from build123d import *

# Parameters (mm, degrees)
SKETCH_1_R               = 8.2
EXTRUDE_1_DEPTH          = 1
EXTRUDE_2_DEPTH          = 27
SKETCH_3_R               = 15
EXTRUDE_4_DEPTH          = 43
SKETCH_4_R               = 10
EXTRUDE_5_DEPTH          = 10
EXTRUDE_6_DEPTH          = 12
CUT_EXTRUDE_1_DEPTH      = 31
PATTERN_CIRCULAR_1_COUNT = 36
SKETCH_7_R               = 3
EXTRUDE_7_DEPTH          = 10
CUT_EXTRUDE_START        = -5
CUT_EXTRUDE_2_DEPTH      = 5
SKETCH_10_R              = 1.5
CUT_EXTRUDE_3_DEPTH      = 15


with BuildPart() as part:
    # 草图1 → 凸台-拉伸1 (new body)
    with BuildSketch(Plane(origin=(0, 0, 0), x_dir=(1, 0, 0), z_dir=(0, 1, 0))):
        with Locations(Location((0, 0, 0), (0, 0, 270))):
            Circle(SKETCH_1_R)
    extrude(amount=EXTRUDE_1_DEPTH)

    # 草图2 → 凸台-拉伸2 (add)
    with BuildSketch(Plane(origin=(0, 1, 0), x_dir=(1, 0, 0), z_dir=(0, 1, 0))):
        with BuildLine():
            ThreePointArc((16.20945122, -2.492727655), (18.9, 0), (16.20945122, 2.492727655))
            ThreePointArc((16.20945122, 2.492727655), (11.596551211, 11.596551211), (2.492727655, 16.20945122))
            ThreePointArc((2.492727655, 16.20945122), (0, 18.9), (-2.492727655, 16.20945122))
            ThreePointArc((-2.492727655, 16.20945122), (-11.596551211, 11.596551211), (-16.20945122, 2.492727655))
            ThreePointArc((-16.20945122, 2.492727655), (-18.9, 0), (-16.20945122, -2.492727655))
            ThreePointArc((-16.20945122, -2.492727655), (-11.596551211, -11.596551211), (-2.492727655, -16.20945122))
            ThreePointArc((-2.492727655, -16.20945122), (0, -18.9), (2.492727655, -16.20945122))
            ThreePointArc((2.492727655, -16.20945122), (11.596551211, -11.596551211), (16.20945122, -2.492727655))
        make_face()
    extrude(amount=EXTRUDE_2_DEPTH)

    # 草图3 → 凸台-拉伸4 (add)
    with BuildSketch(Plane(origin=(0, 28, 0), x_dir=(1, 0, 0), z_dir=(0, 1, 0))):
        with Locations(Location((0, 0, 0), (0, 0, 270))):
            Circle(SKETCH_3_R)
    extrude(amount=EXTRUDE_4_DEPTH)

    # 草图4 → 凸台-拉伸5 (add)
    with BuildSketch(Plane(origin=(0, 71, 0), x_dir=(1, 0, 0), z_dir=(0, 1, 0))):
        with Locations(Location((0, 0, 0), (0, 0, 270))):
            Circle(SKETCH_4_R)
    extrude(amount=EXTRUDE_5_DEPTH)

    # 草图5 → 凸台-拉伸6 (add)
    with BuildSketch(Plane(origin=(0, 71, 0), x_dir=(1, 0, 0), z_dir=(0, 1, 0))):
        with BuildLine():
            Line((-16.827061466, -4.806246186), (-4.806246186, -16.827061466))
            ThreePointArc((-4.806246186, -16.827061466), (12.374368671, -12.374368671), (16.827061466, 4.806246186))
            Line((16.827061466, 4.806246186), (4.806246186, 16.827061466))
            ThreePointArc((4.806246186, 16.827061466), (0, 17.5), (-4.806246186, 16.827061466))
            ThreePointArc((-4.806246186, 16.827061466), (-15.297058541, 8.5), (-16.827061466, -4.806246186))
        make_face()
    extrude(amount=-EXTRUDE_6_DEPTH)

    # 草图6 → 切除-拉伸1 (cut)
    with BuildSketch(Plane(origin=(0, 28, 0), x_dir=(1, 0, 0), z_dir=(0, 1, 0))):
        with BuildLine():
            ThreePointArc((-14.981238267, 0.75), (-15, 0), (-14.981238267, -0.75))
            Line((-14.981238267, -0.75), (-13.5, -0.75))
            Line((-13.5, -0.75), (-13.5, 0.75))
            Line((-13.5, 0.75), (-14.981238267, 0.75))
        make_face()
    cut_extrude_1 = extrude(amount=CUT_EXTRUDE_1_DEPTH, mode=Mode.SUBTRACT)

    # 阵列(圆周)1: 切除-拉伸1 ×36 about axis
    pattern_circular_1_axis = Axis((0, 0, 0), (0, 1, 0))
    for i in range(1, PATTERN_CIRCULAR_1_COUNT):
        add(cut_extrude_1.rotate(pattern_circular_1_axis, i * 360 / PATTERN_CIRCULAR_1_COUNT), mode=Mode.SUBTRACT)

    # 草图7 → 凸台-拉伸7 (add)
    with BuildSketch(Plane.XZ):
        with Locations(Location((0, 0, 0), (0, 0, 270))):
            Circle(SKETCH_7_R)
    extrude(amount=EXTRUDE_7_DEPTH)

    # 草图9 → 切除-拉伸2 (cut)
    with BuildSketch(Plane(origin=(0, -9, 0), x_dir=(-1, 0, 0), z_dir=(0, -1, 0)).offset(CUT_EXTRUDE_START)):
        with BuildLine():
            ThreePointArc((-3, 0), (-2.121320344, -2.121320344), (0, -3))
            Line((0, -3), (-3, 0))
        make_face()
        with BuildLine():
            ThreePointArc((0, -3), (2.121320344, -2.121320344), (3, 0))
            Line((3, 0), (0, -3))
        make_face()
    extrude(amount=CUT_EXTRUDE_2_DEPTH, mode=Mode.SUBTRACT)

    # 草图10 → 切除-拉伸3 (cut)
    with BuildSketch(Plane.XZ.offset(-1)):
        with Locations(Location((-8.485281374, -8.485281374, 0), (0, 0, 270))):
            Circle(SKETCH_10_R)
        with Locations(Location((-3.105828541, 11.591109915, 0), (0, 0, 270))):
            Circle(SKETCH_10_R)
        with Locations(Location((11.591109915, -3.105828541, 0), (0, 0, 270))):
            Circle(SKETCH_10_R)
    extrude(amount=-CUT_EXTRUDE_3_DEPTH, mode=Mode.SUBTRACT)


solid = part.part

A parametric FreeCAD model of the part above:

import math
import FreeCAD as App
import Part
import Sketcher

V = App.Vector
Q = App.Units.Quantity

doc = App.newDocument("Part")
params = doc.addObject("Spreadsheet::Sheet", "Params")
for row, (alias, value) in enumerate([
    ("sketch1_diameter", "16.4 mm"),
    ("pad1_length", "1 mm"),
    ("sketch2_radius", "2.5 mm"),
    ("sketch2_radius2", "16.4 mm"),
    ("pad2_length", "27 mm"),
    ("sketch3_diameter", "30 mm"),
    ("pad3_length", "43 mm"),
    ("sketch4_diameter", "20 mm"),
    ("pad4_length", "10 mm"),
    ("sketch5_radius", "17.5 mm"),
    ("sketch5_length", "17 mm"),
    ("pad5_length", "12 mm"),
    ("sketch6_radius", "15 mm"),
    ("sketch6_height", "1.5 mm"),
    ("pocket1_length", "31 mm"),
    ("sketch7_diameter", "6 mm"),
    ("pad6_length", "10 mm"),
    ("sketch8_radius", "3 mm"),
    ("pocket2_length", "5 mm"),
    ("sketch9_diameter", "3 mm"),
    ("pocket3_length", "15 mm"),
], start=1):
    params.set(f"A{row}", alias)
    params.set(f"B{row}", "=" + value)
    params.setAlias(f"B{row}", alias)

body = doc.addObject("PartDesign::Body", "Body")

sketch1 = doc.addObject("Sketcher::SketchObject", "Sketch")
body.addObject(sketch1)
sketch1.AttachmentSupport = (doc.XZ_Plane, [""])
sketch1.MapMode = "FlatFace"
sketch1.addGeometry(Part.Circle(V(0, 0, 0), V(0, 0, 1), 8.2), False)
sketch1.addConstraint([
    Sketcher.Constraint("Coincident", 0, 3, -1, 1),
    Sketcher.Constraint("Diameter", 0, Q("16.4 mm")),
])
sketch1.setExpression("Constraints[1]", "Params.sketch1_diameter")
pad1 = doc.addObject("PartDesign::Pad", "Pad")
body.addObject(pad1)
pad1.Profile = sketch1
pad1.setExpression("Length", "Params.pad1_length")
pad1.Reversed = True

sketch2 = doc.addObject("Sketcher::SketchObject", "Sketch001")
body.addObject(sketch2)
sketch2.AttachmentSupport = (doc.XZ_Plane, [""])
sketch2.MapMode = "FlatFace"
sketch2.AttachmentOffset = App.Placement(V(0, 0, -1), App.Rotation())
sketch2.addGeometry([
    Part.ArcOfCircle(Part.Circle(V(16.4, 0, 0), V(0, 0, 1), 2.5), math.radians(-94.371296), math.radians(94.371296)),
    Part.ArcOfCircle(Part.Circle(V(0, 0, 0), V(0, 0, 1), 16.4), math.radians(-81.257408), math.radians(-8.742592)),
    Part.ArcOfCircle(Part.Circle(V(0, -16.4, 0), V(0, 0, 1), 2.5), math.radians(175.628704), math.radians(364.371296)),
    Part.ArcOfCircle(Part.Circle(V(0, 0, 0), V(0, 0, 1), 16.4), math.radians(-171.257408), math.radians(-98.742592)),
    Part.ArcOfCircle(Part.Circle(V(-16.4, 0, 0), V(0, 0, 1), 2.5), math.radians(85.628704), math.radians(274.371296)),
    Part.ArcOfCircle(Part.Circle(V(0, 0, 0), V(0, 0, 1), 16.4), math.radians(98.742592), math.radians(171.257408)),
    Part.ArcOfCircle(Part.Circle(V(0, 16.4, 0), V(0, 0, 1), 2.5), math.radians(-4.371296), math.radians(184.371296)),
    Part.ArcOfCircle(Part.Circle(V(0, 0, 0), V(0, 0, 1), 16.4), math.radians(8.742592), math.radians(81.257408)),
], False)
sketch2.addConstraint([
    Sketcher.Constraint("Coincident", 0, 1, 1, 2),
    Sketcher.Constraint("Coincident", 1, 1, 2, 2),
    Sketcher.Constraint("Coincident", 2, 1, 3, 2),
    Sketcher.Constraint("Coincident", 3, 1, 4, 2),
    Sketcher.Constraint("Coincident", 4, 1, 5, 2),
    Sketcher.Constraint("Coincident", 5, 1, 6, 2),
    Sketcher.Constraint("Coincident", 6, 1, 7, 2),
    Sketcher.Constraint("Coincident", 7, 1, 0, 2),
    Sketcher.Constraint("Coincident", 1, 3, -1, 1),
    Sketcher.Constraint("Coincident", 3, 3, -1, 1),
    Sketcher.Constraint("Coincident", 5, 3, -1, 1),
    Sketcher.Constraint("Coincident", 7, 3, -1, 1),
    Sketcher.Constraint("Equal", 0, 2),
    Sketcher.Constraint("Equal", 1, 3),
    Sketcher.Constraint("Equal", 2, 4),
    Sketcher.Constraint("Equal", 3, 5),
    Sketcher.Constraint("Equal", 4, 6),
    Sketcher.Constraint("Equal", 5, 7),
    Sketcher.Constraint("Symmetric", 0, 3, 4, 3, -1, 1),
    Sketcher.Constraint("Symmetric", 2, 3, 6, 3, -1, 1),
    Sketcher.Constraint("PointOnObject", 0, 3, -1),
    Sketcher.Constraint("PointOnObject", 2, 3, -2),
    Sketcher.Constraint("Radius", 0, Q("2.5 mm")),
    Sketcher.Constraint("Radius", 1, Q("16.4 mm")),
    Sketcher.Constraint("DistanceX", -1, 1, 0, 3, Q("16.4 mm")),
    Sketcher.Constraint("DistanceY", 2, 3, -1, 1, Q("16.4 mm")),
])
sketch2.setExpression("Constraints[22]", "Params.sketch2_radius")
sketch2.setExpression("Constraints[23]", "Params.sketch2_radius2")
pad2 = doc.addObject("PartDesign::Pad", "Pad001")
body.addObject(pad2)
pad2.Profile = sketch2
pad2.setExpression("Length", "Params.pad2_length")
pad2.Reversed = True

sketch3 = doc.addObject("Sketcher::SketchObject", "Sketch002")
body.addObject(sketch3)
sketch3.AttachmentSupport = (doc.XZ_Plane, [""])
sketch3.MapMode = "FlatFace"
sketch3.AttachmentOffset = App.Placement(V(0, 0, -28), App.Rotation())
sketch3.addGeometry(Part.Circle(V(0, 0, 0), V(0, 0, 1), 15), False)
sketch3.addConstraint([
    Sketcher.Constraint("Coincident", 0, 3, -1, 1),
    Sketcher.Constraint("Diameter", 0, Q("30 mm")),
])
sketch3.setExpression("Constraints[1]", "Params.sketch3_diameter")
pad3 = doc.addObject("PartDesign::Pad", "Pad002")
body.addObject(pad3)
pad3.Profile = sketch3
pad3.setExpression("Length", "Params.pad3_length")
pad3.Reversed = True

sketch4 = doc.addObject("Sketcher::SketchObject", "Sketch003")
body.addObject(sketch4)
sketch4.AttachmentSupport = (doc.XZ_Plane, [""])
sketch4.MapMode = "FlatFace"
sketch4.AttachmentOffset = App.Placement(V(0, 0, -71), App.Rotation())
sketch4.addGeometry(Part.Circle(V(0, 0, 0), V(0, 0, 1), 10), False)
sketch4.addConstraint([
    Sketcher.Constraint("Coincident", 0, 3, -1, 1),
    Sketcher.Constraint("Diameter", 0, Q("20 mm")),
])
sketch4.setExpression("Constraints[1]", "Params.sketch4_diameter")
pad4 = doc.addObject("PartDesign::Pad", "Pad003")
body.addObject(pad4)
pad4.Profile = sketch4
pad4.setExpression("Length", "Params.pad4_length")
pad4.Reversed = True

sketch5 = doc.addObject("Sketcher::SketchObject", "Sketch004")
body.addObject(sketch5)
sketch5.AttachmentSupport = (doc.XZ_Plane, [""])
sketch5.MapMode = "FlatFace"
sketch5.AttachmentOffset = App.Placement(V(0, 0, -71), App.Rotation())
sketch5.addGeometry([
    Part.LineSegment(V(-16.827061, 4.806246, 0), V(-4.806246, 16.827061, 0)),
    Part.ArcOfCircle(Part.Circle(V(0, 0, 0), V(0, 0, 1), 17.5), math.radians(-15.940719), math.radians(105.940719)),
    Part.LineSegment(V(16.827061, -4.806246, 0), V(4.806246, -16.827061, 0)),
    Part.ArcOfCircle(Part.Circle(V(0, 0, 0), V(0, 0, 1), 17.5), math.radians(-105.940719), math.radians(-74.059281)),
    Part.ArcOfCircle(Part.Circle(V(0, 0, 0), V(0, 0, 1), 17.5), math.radians(164.059281), math.radians(254.059281)),
], False)
sketch5.addConstraint([
    Sketcher.Constraint("Coincident", 0, 2, 1, 2),
    Sketcher.Constraint("Coincident", 1, 1, 2, 1),
    Sketcher.Constraint("Coincident", 2, 2, 3, 2),
    Sketcher.Constraint("Tangent", 3, 1, 4, 2),
    Sketcher.Constraint("Coincident", 4, 1, 0, 1),
    Sketcher.Constraint("Coincident", 1, 3, -1, 1),
    Sketcher.Constraint("Coincident", 3, 3, -1, 1),
    Sketcher.Constraint("Equal", 1, 3),
    Sketcher.Constraint("Equal", 3, 4),
    Sketcher.Constraint("Parallel", 0, 2),
    Sketcher.Constraint("Horizontal", 2, 2, 3, 1),
    Sketcher.Constraint("Vertical", 0, 2, 3, 1),
    Sketcher.Constraint("Radius", 1, Q("17.5 mm")),
    Sketcher.Constraint("Angle", 0, Q("45 deg")),
    Sketcher.Constraint("Distance", 0, Q("17 mm")),
])
sketch5.setExpression("Constraints[12]", "Params.sketch5_radius")
sketch5.setExpression("Constraints[14]", "Params.sketch5_length")
pad5 = doc.addObject("PartDesign::Pad", "Pad004")
body.addObject(pad5)
pad5.Profile = sketch5
pad5.setExpression("Length", "Params.pad5_length")

sketch6 = doc.addObject("Sketcher::SketchObject", "Sketch005")
body.addObject(sketch6)
sketch6.AttachmentSupport = (doc.XZ_Plane, [""])
sketch6.MapMode = "FlatFace"
sketch6.AttachmentOffset = App.Placement(V(0, 0, -28), App.Rotation())
sketch6.addGeometry([
    Part.ArcOfCircle(Part.Circle(V(0, 0, 0), V(0, 0, 1), 15), math.radians(177.134016), math.radians(182.865984)),
    Part.LineSegment(V(-14.981238, 0.75, 0), V(-13.5, 0.75, 0)),
    Part.LineSegment(V(-13.5, 0.75, 0), V(-13.5, -0.75, 0)),
    Part.LineSegment(V(-13.5, -0.75, 0), V(-14.981238, -0.75, 0)),
], False)
sketch6.addConstraint([
    Sketcher.Constraint("Coincident", 0, 1, 1, 1),
    Sketcher.Constraint("Coincident", 1, 2, 2, 1),
    Sketcher.Constraint("Coincident", 2, 2, 3, 1),
    Sketcher.Constraint("Coincident", 3, 2, 0, 2),
    Sketcher.Constraint("Horizontal", 1),
    Sketcher.Constraint("Vertical", 2),
    Sketcher.Constraint("Horizontal", 3),
    Sketcher.Constraint("Coincident", 0, 3, -1, 1),
    Sketcher.Constraint("Vertical", 0, 1, 3, 2),
    Sketcher.Constraint("Radius", 0, Q("15 mm")),
    Sketcher.Constraint("DistanceY", 2, 2, 2, 1, Q("1.5 mm")),
    Sketcher.Constraint("DistanceX", 1, 2, -1, 1, Q("13.5 mm")),
])
sketch6.setExpression("Constraints[9]", "Params.sketch6_radius")
sketch6.setExpression("Constraints[10]", "Params.sketch6_height")
pocket1 = doc.addObject("PartDesign::Pocket", "Pocket")
body.addObject(pocket1)
pocket1.Profile = sketch6
pocket1.setExpression("Length", "Params.pocket1_length")
doc.recompute()

polarpattern = doc.addObject("PartDesign::PolarPattern", "PolarPattern")
body.addObject(polarpattern)
polarpattern.Originals = [pocket1]
polarpattern.Axis = (doc.Y_Axis, [""])
polarpattern.Angle = 360
polarpattern.Occurrences = 36
body.Tip = polarpattern

sketch7 = doc.addObject("Sketcher::SketchObject", "Sketch006")
body.addObject(sketch7)
sketch7.AttachmentSupport = (doc.XZ_Plane, [""])
sketch7.MapMode = "FlatFace"
sketch7.addGeometry(Part.Circle(V(0, 0, 0), V(0, 0, 1), 3), False)
sketch7.addConstraint([
    Sketcher.Constraint("Coincident", 0, 3, -1, 1),
    Sketcher.Constraint("Diameter", 0, Q("6 mm")),
])
sketch7.setExpression("Constraints[1]", "Params.sketch7_diameter")
pad6 = doc.addObject("PartDesign::Pad", "Pad005")
body.addObject(pad6)
pad6.Profile = sketch7
pad6.setExpression("Length", "Params.pad6_length")

sketch8 = doc.addObject("Sketcher::SketchObject", "Sketch007")
body.addObject(sketch8)
sketch8.AttachmentSupport = (doc.XZ_Plane, [""])
sketch8.MapMode = "FlatFace"
sketch8.AttachmentOffset = App.Placement(V(0, 0, 4), App.Rotation())
sketch8.addGeometry([
    Part.ArcOfCircle(Part.Circle(V(0, 0, 0), V(0, 0, 1), 3), math.radians(0), math.radians(90)),
    Part.LineSegment(V(0, 3, 0), V(3, 0, 0)),
    Part.ArcOfCircle(Part.Circle(V(0, 0, 0), V(0, 0, 1), 3), math.radians(90), math.radians(180)),
    Part.LineSegment(V(-3, 0, 0), V(0, 3, 0)),
], False)
sketch8.addConstraint([
    Sketcher.Constraint("Coincident", 0, 1, 1, 2),
    Sketcher.Constraint("Coincident", 1, 1, 0, 2),
    Sketcher.Constraint("Coincident", 2, 1, 3, 2),
    Sketcher.Constraint("Coincident", 3, 1, 2, 2),
    Sketcher.Constraint("Coincident", 0, 3, -1, 1),
    Sketcher.Constraint("Coincident", 2, 3, -1, 1),
    Sketcher.Constraint("Coincident", 2, 1, 1, 1),
    Sketcher.Constraint("PointOnObject", 0, 1, -1),
    Sketcher.Constraint("PointOnObject", 1, 1, -2),
    Sketcher.Constraint("PointOnObject", 3, 1, -1),
    Sketcher.Constraint("Radius", 0, Q("3 mm")),
])
sketch8.setExpression("Constraints[10]", "Params.sketch8_radius")
pocket2 = doc.addObject("PartDesign::Pocket", "Pocket001")
body.addObject(pocket2)
pocket2.Profile = sketch8
pocket2.setExpression("Length", "Params.pocket2_length")
pocket2.Reversed = True

sketch9 = doc.addObject("Sketcher::SketchObject", "Sketch008")
body.addObject(sketch9)
sketch9.AttachmentSupport = (doc.XZ_Plane, [""])
sketch9.MapMode = "FlatFace"
sketch9.AttachmentOffset = App.Placement(V(0, 0, -1), App.Rotation())
sketch9.addGeometry([
    Part.Circle(V(-8.485281, -8.485281, 0), V(0, 0, 1), 1.5),
    Part.Circle(V(-3.105829, 11.59111, 0), V(0, 0, 1), 1.5),
    Part.Circle(V(11.59111, -3.105829, 0), V(0, 0, 1), 1.5),
], False)
sketch9.addConstraint([
    Sketcher.Constraint("Equal", 0, 1),
    Sketcher.Constraint("Equal", 1, 2),
    Sketcher.Constraint("Diameter", 0, Q("3 mm")),
    Sketcher.Constraint("DistanceX", 0, 3, -1, 1, Q("8.485281 mm")),
    Sketcher.Constraint("DistanceY", 0, 3, -1, 1, Q("8.485281 mm")),
    Sketcher.Constraint("DistanceX", 1, 3, -1, 1, Q("3.105829 mm")),
    Sketcher.Constraint("DistanceY", -1, 1, 1, 3, Q("11.59111 mm")),
    Sketcher.Constraint("DistanceX", -1, 1, 2, 3, Q("11.59111 mm")),
    Sketcher.Constraint("DistanceY", 2, 3, -1, 1, Q("3.105829 mm")),
])
sketch9.setExpression("Constraints[2]", "Params.sketch9_diameter")
pocket3 = doc.addObject("PartDesign::Pocket", "Pocket002")
body.addObject(pocket3)
pocket3.Profile = sketch9
pocket3.setExpression("Length", "Params.pocket3_length")

doc.recompute()
